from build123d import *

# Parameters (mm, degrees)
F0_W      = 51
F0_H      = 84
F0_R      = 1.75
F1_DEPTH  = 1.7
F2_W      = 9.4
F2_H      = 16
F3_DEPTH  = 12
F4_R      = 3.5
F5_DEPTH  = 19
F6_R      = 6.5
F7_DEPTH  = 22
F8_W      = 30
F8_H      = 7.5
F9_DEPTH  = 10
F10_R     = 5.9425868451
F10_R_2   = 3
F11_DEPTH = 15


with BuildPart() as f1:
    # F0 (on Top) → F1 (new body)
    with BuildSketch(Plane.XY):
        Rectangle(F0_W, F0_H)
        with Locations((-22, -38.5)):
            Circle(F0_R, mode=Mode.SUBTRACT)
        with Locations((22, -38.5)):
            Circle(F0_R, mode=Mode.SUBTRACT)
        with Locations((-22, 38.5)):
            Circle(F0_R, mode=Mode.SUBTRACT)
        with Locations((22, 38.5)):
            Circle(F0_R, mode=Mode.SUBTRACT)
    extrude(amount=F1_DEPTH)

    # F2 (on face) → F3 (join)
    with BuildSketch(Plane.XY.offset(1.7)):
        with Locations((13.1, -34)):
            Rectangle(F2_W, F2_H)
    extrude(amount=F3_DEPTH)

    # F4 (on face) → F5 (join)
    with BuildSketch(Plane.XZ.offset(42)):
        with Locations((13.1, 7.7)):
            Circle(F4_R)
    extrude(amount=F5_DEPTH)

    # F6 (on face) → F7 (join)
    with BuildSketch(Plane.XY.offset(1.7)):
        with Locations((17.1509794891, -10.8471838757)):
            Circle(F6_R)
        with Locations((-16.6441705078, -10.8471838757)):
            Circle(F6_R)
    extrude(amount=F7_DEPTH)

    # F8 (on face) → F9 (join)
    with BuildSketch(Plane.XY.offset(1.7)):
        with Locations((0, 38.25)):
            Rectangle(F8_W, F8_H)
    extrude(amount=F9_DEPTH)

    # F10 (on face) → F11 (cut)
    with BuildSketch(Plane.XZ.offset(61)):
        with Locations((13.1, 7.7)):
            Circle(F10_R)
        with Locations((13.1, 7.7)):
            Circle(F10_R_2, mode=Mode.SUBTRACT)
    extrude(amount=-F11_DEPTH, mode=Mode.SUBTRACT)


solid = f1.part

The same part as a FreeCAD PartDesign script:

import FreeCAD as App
import Part
import Sketcher


def add_polygon(sketch, points):
    """Adds a closed chain of lines whose ends are joined by coincident constraints."""
    first, n = sketch.GeometryCount, len(points)
    for a, b in zip(points, points[1:] + points[:1]):
        sketch.addGeometry(Part.LineSegment(App.Vector(*a, 0), App.Vector(*b, 0)), False)
    for i in range(n):
        sketch.addConstraint(Sketcher.Constraint("Coincident", first + i, 2, first + (i + 1) % n, 1))

doc = App.newDocument("Part")
body = doc.addObject("PartDesign::Body", "Body")

# Sketch on XY plane
sketch1 = body.newObject("Sketcher::SketchObject", "Sketch")
sketch1.AttachmentSupport = (doc.getObject("XY_Plane"), [""])
sketch1.MapMode = "FlatFace"
add_polygon(sketch1, [(-25.5, 42), (-25.5, -42), (25.5, -42), (25.5, 42)])  # lines 0-3
sketch1.addGeometry(Part.Circle(App.Vector(-22, -38.5, 0), App.Vector(0, 0, 1), 1.8), False)  # 4
sketch1.addGeometry(Part.Circle(App.Vector(22, -38.5, 0), App.Vector(0, 0, 1), 1.8), False)  # 5
sketch1.addGeometry(Part.Circle(App.Vector(-22, 38.5, 0), App.Vector(0, 0, 1), 1.8), False)  # 6
sketch1.addGeometry(Part.Circle(App.Vector(22, 38.5, 0), App.Vector(0, 0, 1), 1.8), False)  # 7
sketch1.addConstraint(Sketcher.Constraint("Vertical", 0))
sketch1.addConstraint(Sketcher.Constraint("Horizontal", 1))
sketch1.addConstraint(Sketcher.Constraint("Vertical", 2))
sketch1.addConstraint(Sketcher.Constraint("Horizontal", 3))
sketch1.addConstraint(Sketcher.Constraint("Equal", 4, 5))
sketch1.addConstraint(Sketcher.Constraint("Equal", 5, 6))
sketch1.addConstraint(Sketcher.Constraint("Equal", 6, 7))
sketch1.addConstraint(Sketcher.Constraint("Symmetric", 5, 3, 6, 3, -1, 1))
sketch1.addConstraint(Sketcher.Constraint("Symmetric", 4, 3, 7, 3, -1, 1))
sketch1.addConstraint(Sketcher.Constraint("Symmetric", 0, 2, 2, 2, -1, 1))
sketch1.addConstraint(Sketcher.Constraint("Symmetric", 4, 3, 5, 3, -2))
sketch1.addConstraint(Sketcher.Constraint("Diameter", 4, 3.5))
sketch1.addConstraint(Sketcher.Constraint("DistanceX", 1, 1, 1, 2, 51.0))
sketch1.addConstraint(Sketcher.Constraint("DistanceY", 0, 2, 0, 1, 84.0))
sketch1.addConstraint(Sketcher.Constraint("DistanceX", 4, 3, -1, 1, 22.0))
sketch1.addConstraint(Sketcher.Constraint("DistanceY", 4, 3, 6, 3, 77.0))
pad1 = body.newObject("PartDesign::Pad", "Pad")
pad1.Profile = sketch1
pad1.Length = 1.7

# Sketch on XY plane
sketch2 = body.newObject("Sketcher::SketchObject", "Sketch001")
sketch2.AttachmentSupport = (doc.getObject("XY_Plane"), [""])
sketch2.MapMode = "FlatFace"
sketch2.AttachmentOffset = App.Placement(App.Vector(0, 0, 1.7), App.Rotation())
add_polygon(sketch2, [(8, -26), (8, -42), (18, -42), (18, -26)])  # lines 0-3
sketch2.addConstraint(Sketcher.Constraint("Vertical", 0))
sketch2.addConstraint(Sketcher.Constraint("Horizontal", 1))
sketch2.addConstraint(Sketcher.Constraint("Vertical", 2))
sketch2.addConstraint(Sketcher.Constraint("Horizontal", 3))
sketch2.addConstraint(Sketcher.Constraint("DistanceY", 0, 2, 0, 1, 16.0))
sketch2.addConstraint(Sketcher.Constraint("DistanceX", 1, 1, 1, 2, 9.4))
sketch2.addConstraint(Sketcher.Constraint("DistanceY", 0, 2, -1, 1, 42.0))
sketch2.addConstraint(Sketcher.Constraint("DistanceX", -1, 1, 0, 2, 8.4))
pad2 = body.newObject("PartDesign::Pad", "Pad001")
pad2.Profile = sketch2
pad2.Length = 12

# Sketch on XZ plane
sketch3 = body.newObject("Sketcher::SketchObject", "Sketch002")
sketch3.AttachmentSupport = (doc.getObject("XZ_Plane"), [""])
sketch3.MapMode = "FlatFace"
sketch3.AttachmentOffset = App.Placement(App.Vector(0, 0, 42), App.Rotation())
sketch3.addGeometry(Part.Circle(App.Vector(13.1, 7.7, 0), App.Vector(0, 0, 1), 3.5), False)
sketch3.addConstraint(Sketcher.Constraint("Diameter", 0, 7.0))
sketch3.addConstraint(Sketcher.Constraint("DistanceX", -1, 1, 0, 3, 13.1))
sketch3.addConstraint(Sketcher.Constraint("DistanceY", -1, 1, 0, 3, 7.7))
pad3 = body.newObject("PartDesign::Pad", "Pad002")
pad3.Profile = sketch3
pad3.Length = 19

# Sketch on XY plane
sketch4 = body.newObject("Sketcher::SketchObject", "Sketch003")
sketch4.AttachmentSupport = (doc.getObject("XY_Plane"), [""])
sketch4.MapMode = "FlatFace"
sketch4.AttachmentOffset = App.Placement(App.Vector(0, 0, 1.7), App.Rotation())
sketch4.addGeometry(Part.Circle(App.Vector(17, -11, 0), App.Vector(0, 0, 1), 6), False)
sketch4.addGeometry(Part.Circle(App.Vector(-17, -11, 0), App.Vector(0, 0, 1), 6), False)
sketch4.addConstraint(Sketcher.Constraint("Equal", 0, 1))
sketch4.addConstraint(Sketcher.Constraint("Horizontal", 0, 3, 1, 3))
sketch4.addConstraint(Sketcher.Constraint("Diameter", 0, 13.0))
sketch4.addConstraint(Sketcher.Constraint("DistanceX", -1, 1, 0, 3, 17.150979))
sketch4.addConstraint(Sketcher.Constraint("DistanceX", 1, 3, -1, 1, 16.644171))
sketch4.addConstraint(Sketcher.Constraint("DistanceY", 0, 3, -1, 1, 10.847184))
pad4 = body.newObject("PartDesign::Pad", "Pad003")
pad4.Profile = sketch4
pad4.Length = 22

# Sketch on XY plane
sketch5 = body.newObject("Sketcher::SketchObject", "Sketch004")
sketch5.AttachmentSupport = (doc.getObject("XY_Plane"), [""])
sketch5.MapMode = "FlatFace"
sketch5.AttachmentOffset = App.Placement(App.Vector(0, 0, 1.7), App.Rotation())
add_polygon(sketch5, [(-15, 42), (-15, 34), (15, 34), (15, 42)])  # lines 0-3
sketch5.addConstraint(Sketcher.Constraint("Vertical", 0))
sketch5.addConstraint(Sketcher.Constraint("Horizontal", 1))
sketch5.addConstraint(Sketcher.Constraint("Vertical", 2))
sketch5.addConstraint(Sketcher.Constraint("Horizontal", 3))
sketch5.addConstraint(Sketcher.Constraint("DistanceX", 1, 1, 1, 2, 30.0))
sketch5.addConstraint(Sketcher.Constraint("DistanceY", 0, 2, 0, 1, 7.5))
sketch5.addConstraint(Sketcher.Constraint("DistanceX", 0, 2, -1, 1, 15.0))
sketch5.addConstraint(Sketcher.Constraint("DistanceY", -1, 1, 2, 2, 42.0))
pad5 = body.newObject("PartDesign::Pad", "Pad004")
pad5.Profile = sketch5
pad5.Length = 10

# Sketch on XZ plane
sketch6 = body.newObject("Sketcher::SketchObject", "Sketch005")
sketch6.AttachmentSupport = (doc.getObject("XZ_Plane"), [""])
sketch6.MapMode = "FlatFace"
sketch6.AttachmentOffset = App.Placement(App.Vector(0, 0, 61), App.Rotation())
sketch6.addGeometry(Part.Circle(App.Vector(13.1, 7.7, 0), App.Vector(0, 0, 1), 5.9), False)
sketch6.addGeometry(Part.Circle(App.Vector(13.1, 7.7, 0), App.Vector(0, 0, 1), 3), False)
sketch6.addConstraint(Sketcher.Constraint("Coincident", 1, 3, 0, 3))
sketch6.addConstraint(Sketcher.Constraint("Diameter", 1, 6.0))
sketch6.addConstraint(Sketcher.Constraint("DistanceX", -1, 1, 0, 3, 13.1))
sketch6.addConstraint(Sketcher.Constraint("DistanceY", -1, 1, 0, 3, 7.7))
sketch6.addConstraint(Sketcher.Constraint("Diameter", 0, 11.885174))
pocket1 = body.newObject("PartDesign::Pocket", "Pocket")
pocket1.Profile = sketch6
pocket1.Length = 15

doc.recompute()
